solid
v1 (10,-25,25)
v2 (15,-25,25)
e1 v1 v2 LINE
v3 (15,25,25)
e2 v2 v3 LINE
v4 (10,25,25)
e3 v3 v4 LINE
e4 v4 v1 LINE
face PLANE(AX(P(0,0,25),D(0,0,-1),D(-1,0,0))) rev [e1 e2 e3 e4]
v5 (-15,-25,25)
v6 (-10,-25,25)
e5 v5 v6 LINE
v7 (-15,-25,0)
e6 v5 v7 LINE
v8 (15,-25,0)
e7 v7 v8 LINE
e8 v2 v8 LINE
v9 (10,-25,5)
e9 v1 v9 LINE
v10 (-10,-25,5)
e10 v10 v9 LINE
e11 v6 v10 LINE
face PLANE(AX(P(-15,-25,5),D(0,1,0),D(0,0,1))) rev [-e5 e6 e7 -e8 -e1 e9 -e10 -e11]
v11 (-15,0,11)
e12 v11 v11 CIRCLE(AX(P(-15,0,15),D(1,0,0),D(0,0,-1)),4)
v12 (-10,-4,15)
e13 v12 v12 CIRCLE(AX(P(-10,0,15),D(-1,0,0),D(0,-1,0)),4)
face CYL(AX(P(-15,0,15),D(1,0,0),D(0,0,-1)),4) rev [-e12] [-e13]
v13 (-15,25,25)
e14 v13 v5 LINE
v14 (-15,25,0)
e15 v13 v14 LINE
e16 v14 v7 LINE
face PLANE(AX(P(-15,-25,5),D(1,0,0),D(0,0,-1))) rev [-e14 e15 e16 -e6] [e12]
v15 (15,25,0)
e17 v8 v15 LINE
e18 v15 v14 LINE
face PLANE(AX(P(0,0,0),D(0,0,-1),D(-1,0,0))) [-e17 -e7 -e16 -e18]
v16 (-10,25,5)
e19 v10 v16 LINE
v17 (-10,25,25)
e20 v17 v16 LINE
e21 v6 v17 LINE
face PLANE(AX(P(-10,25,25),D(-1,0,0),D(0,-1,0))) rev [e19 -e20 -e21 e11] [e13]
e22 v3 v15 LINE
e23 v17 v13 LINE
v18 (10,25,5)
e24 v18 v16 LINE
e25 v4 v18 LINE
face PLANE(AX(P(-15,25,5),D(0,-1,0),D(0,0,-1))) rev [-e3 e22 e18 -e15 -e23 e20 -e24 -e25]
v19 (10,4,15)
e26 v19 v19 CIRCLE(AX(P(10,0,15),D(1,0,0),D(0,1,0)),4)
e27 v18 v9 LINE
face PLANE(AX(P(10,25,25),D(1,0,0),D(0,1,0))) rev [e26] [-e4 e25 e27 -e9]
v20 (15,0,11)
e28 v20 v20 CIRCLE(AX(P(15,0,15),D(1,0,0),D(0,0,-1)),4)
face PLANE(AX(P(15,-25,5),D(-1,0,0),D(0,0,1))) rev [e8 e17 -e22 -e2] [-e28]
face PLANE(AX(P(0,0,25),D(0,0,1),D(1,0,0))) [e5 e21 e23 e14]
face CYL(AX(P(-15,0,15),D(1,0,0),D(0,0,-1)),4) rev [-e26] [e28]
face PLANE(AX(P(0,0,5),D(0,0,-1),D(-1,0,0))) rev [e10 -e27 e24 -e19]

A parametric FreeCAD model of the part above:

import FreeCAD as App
import Part
import Sketcher

V = App.Vector
Q = App.Units.Quantity


def add_polygon(sketch, points):
    """Adds a closed chain of lines whose ends are joined by coincident constraints."""
    first, n = sketch.GeometryCount, len(points)
    for a, b in zip(points, points[1:] + points[:1]):
        sketch.addGeometry(Part.LineSegment(App.Vector(*a, 0), App.Vector(*b, 0)), False)
    for i in range(n):
        sketch.addConstraint(Sketcher.Constraint("Coincident", first + i, 2, first + (i + 1) % n, 1))

doc = App.newDocument("Part")
body = doc.addObject("PartDesign::Body", "Body")

sketch1 = body.newObject("Sketcher::SketchObject", "Sketch")
sketch1.AttachmentSupport = (doc.getObject("XY_Plane"), [""])
sketch1.MapMode = "FlatFace"
add_polygon(sketch1, [(-15, 25), (-15, -25), (15, -25), (15, 25)])
sketch1.addConstraint([
    Sketcher.Constraint("Vertical", 0),
    Sketcher.Constraint("Horizontal", 1),
    Sketcher.Constraint("Vertical", 2),
    Sketcher.Constraint("Horizontal", 3),
    Sketcher.Constraint("Symmetric", 0, 2, 2, 2, -1, 1),
    Sketcher.Constraint("DistanceX", 1, 1, 1, 2, Q("30 mm")),
    Sketcher.Constraint("DistanceY", 0, 2, 0, 1, Q("50 mm")),
])
pad1 = body.newObject("PartDesign::Pad", "Pad")
pad1.Profile = sketch1
pad1.Length = 5

sketch2 = body.newObject("Sketcher::SketchObject", "Sketch001")
sketch2.AttachmentSupport = (doc.getObject("XY_Plane"), [""])
sketch2.MapMode = "FlatFace"
sketch2.AttachmentOffset = App.Placement(V(0, 0, 5), App.Rotation())
add_polygon(sketch2, [(-15, 25), (-15, -25), (-10, -25), (-10, 25)])
add_polygon(sketch2, [(10, 25), (10, -25), (15, -25), (15, 25)])
sketch2.addConstraint([
    Sketcher.Constraint("Vertical", 0),
    Sketcher.Constraint("Horizontal", 1),
    Sketcher.Constraint("Vertical", 2),
    Sketcher.Constraint("Horizontal", 3),
    Sketcher.Constraint("Vertical", 4),
    Sketcher.Constraint("Horizontal", 5),
    Sketcher.Constraint("Vertical", 6),
    Sketcher.Constraint("Horizontal", 7),
    Sketcher.Constraint("Symmetric", 2, 2, 4, 2, -1, 1),
    Sketcher.Constraint("Symmetric", 0, 2, 6, 2, -1, 1),
    Sketcher.Constraint("Horizontal", 1, 2, 4, 2),
    Sketcher.Constraint("DistanceX", 1, 1, 1, 2, Q("5 mm")),
    Sketcher.Constraint("DistanceY", 0, 2, 0, 1, Q("50 mm")),
    Sketcher.Constraint("DistanceX", 0, 2, -1, 1, Q("15 mm")),
])
pad2 = body.newObject("PartDesign::Pad", "Pad001")
pad2.Profile = sketch2
pad2.Length = 20

sketch3 = body.newObject("Sketcher::SketchObject", "Sketch002")
sketch3.AttachmentSupport = (doc.getObject("YZ_Plane"), [""])
sketch3.MapMode = "FlatFace"
sketch3.AttachmentOffset = App.Placement(V(0, 0, 15), App.Rotation())
sketch3.addGeometry(Part.Circle(V(0, 15, 0), V(0, 0, 1), 4), False)
sketch3.addConstraint([
    Sketcher.Constraint("PointOnObject", 0, 3, -2),
    Sketcher.Constraint("Diameter", 0, Q("8 mm")),
    Sketcher.Constraint("DistanceY", -1, 1, 0, 3, Q("15 mm")),
])
pocket1 = body.newObject("PartDesign::Pocket", "Pocket")
pocket1.Profile = sketch3
pocket1.Type = "ThroughAll"

doc.recompute()
